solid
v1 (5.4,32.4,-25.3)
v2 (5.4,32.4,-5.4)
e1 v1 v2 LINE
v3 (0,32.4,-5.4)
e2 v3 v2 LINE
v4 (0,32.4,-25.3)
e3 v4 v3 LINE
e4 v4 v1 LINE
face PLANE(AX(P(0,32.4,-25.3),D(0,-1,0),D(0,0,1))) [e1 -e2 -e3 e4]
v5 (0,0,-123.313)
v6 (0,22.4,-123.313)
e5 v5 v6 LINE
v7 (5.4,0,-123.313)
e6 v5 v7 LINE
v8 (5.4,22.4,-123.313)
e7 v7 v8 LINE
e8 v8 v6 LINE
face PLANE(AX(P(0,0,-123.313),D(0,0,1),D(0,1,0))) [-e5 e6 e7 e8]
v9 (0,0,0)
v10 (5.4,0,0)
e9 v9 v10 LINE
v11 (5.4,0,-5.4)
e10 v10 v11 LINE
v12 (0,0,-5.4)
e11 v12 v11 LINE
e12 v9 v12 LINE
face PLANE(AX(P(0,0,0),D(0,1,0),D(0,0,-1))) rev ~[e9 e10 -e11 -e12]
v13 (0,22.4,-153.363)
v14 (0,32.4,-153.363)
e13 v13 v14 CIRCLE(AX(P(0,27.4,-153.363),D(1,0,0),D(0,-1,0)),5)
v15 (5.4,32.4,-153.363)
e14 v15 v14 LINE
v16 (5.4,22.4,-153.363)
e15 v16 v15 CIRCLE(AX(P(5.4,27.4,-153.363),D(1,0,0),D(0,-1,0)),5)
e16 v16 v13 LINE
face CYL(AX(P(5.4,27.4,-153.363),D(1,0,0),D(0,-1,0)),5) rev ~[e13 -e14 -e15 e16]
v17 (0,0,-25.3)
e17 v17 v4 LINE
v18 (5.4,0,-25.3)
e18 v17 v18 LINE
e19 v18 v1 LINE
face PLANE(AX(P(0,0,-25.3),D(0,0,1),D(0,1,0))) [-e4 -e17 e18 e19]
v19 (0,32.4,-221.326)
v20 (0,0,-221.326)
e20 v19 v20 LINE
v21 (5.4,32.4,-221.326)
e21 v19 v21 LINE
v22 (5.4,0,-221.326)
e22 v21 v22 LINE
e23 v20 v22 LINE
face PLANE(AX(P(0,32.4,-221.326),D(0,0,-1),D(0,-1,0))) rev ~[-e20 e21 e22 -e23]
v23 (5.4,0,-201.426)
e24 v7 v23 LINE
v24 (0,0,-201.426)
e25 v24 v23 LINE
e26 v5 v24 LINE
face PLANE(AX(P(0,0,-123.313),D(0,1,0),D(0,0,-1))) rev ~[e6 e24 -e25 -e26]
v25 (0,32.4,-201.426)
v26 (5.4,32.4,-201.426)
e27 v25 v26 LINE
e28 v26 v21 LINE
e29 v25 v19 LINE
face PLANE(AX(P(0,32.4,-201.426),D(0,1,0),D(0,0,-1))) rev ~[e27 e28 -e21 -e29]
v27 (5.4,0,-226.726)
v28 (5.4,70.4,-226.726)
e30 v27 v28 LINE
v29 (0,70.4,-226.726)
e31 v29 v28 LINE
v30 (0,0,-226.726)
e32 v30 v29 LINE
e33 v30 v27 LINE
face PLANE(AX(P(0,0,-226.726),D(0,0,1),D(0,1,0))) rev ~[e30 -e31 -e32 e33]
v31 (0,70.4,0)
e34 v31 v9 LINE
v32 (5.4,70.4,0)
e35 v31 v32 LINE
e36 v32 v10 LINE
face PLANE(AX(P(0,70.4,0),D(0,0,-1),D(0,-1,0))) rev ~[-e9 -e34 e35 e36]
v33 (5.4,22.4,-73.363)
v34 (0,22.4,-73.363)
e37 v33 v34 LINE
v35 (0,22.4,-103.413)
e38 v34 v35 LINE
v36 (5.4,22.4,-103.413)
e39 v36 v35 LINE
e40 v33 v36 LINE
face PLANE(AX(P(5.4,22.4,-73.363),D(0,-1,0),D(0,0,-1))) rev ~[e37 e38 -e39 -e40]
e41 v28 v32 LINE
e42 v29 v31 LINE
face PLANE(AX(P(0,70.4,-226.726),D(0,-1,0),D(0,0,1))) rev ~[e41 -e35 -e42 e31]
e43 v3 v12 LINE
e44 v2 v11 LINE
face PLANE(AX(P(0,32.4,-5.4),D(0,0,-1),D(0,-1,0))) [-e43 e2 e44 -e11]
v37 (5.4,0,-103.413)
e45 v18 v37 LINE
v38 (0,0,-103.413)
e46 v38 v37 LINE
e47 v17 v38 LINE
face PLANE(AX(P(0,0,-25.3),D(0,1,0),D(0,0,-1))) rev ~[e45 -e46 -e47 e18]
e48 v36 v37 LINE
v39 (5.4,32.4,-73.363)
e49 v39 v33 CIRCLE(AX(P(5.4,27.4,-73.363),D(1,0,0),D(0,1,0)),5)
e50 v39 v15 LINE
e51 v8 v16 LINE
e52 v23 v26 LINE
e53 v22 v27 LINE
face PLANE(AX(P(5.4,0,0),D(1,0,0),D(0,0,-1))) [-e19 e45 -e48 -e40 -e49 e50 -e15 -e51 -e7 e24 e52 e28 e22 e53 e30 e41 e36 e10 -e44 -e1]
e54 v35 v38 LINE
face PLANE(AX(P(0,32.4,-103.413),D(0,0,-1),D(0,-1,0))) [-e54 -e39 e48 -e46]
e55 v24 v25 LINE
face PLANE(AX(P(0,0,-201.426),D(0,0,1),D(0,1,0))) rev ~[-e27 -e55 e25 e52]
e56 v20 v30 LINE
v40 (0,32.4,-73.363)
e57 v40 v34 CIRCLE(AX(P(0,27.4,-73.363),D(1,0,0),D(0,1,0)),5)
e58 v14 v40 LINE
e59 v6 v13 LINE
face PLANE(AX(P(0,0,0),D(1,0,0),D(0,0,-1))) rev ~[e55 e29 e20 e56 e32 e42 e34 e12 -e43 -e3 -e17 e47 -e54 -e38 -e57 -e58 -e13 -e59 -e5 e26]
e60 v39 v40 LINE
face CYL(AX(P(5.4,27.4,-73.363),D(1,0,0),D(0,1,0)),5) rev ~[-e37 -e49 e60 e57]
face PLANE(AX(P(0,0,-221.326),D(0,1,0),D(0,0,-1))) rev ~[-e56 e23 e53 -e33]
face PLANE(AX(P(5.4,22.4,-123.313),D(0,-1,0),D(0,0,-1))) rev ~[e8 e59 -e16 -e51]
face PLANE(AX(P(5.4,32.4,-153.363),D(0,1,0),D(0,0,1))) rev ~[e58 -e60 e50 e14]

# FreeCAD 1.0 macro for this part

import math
import FreeCAD as App
import Part
import Sketcher

V = App.Vector
Q = App.Units.Quantity


def add_polygon(sketch, points):
    """Adds a closed chain of lines whose ends are joined by coincident constraints."""
    first, n = sketch.GeometryCount, len(points)
    for a, b in zip(points, points[1:] + points[:1]):
        sketch.addGeometry(Part.LineSegment(App.Vector(*a, 0), App.Vector(*b, 0)), False)
    for i in range(n):
        sketch.addConstraint(Sketcher.Constraint("Coincident", first + i, 2, first + (i + 1) % n, 1))

doc = App.newDocument("Part")
params = doc.addObject("Spreadsheet::Sheet", "Params")
for row, (alias, value) in enumerate([
    ("sketch1_width", "70.4 mm"),
    ("sketch1_width2", "32.4 mm"),
    ("sketch1_height", "5.4 mm"),
    ("sketch1_height2", "19.9 mm"),
    ("pad1_length", "5.4 mm"),
    ("sketch2_radius", "5 mm"),
    ("sketch2_height", "30.05 mm"),
    ("pocket1_length", "10 mm"),
], start=1):
    params.set(f"A{row}", alias)
    params.set(f"B{row}", "=" + value)
    params.setAlias(f"B{row}", alias)

body = doc.addObject("PartDesign::Body", "Body")

# Sketch on YZ plane
sketch1 = body.newObject("Sketcher::SketchObject", "Sketch")
sketch1.AttachmentSupport = (doc.getObject("YZ_Plane"), [""])
sketch1.MapMode = "FlatFace"
add_polygon(sketch1, [(70.4, 0), (0, 0), (0, -5.4), (32.4, -5.4), (32.4, -25.3), (0, -25.3), (0, -103.413), (32.4, -103.413), (32.4, -123.313), (0, -123.313), (0, -201.426), (32.4, -201.426), (32.4, -221.326), (0, -221.326), (0, -226.726), (70.4, -226.726)])  # lines 0-15
sketch1.addConstraint(Sketcher.Constraint("Horizontal", 0))
sketch1.addConstraint(Sketcher.Constraint("Vertical", 1))
sketch1.addConstraint(Sketcher.Constraint("Horizontal", 2))
sketch1.addConstraint(Sketcher.Constraint("Vertical", 3))
sketch1.addConstraint(Sketcher.Constraint("Horizontal", 4))
sketch1.addConstraint(Sketcher.Constraint("Vertical", 5))
sketch1.addConstraint(Sketcher.Constraint("Horizontal", 6))
sketch1.addConstraint(Sketcher.Constraint("Vertical", 7))
sketch1.addConstraint(Sketcher.Constraint("Horizontal", 8))
sketch1.addConstraint(Sketcher.Constraint("Vertical", 9))
sketch1.addConstraint(Sketcher.Constraint("Horizontal", 10))
sketch1.addConstraint(Sketcher.Constraint("Vertical", 11))
sketch1.addConstraint(Sketcher.Constraint("Horizontal", 12))
sketch1.addConstraint(Sketcher.Constraint("Vertical", 13))
sketch1.addConstraint(Sketcher.Constraint("Horizontal", 14))
sketch1.addConstraint(Sketcher.Constraint("Vertical", 15))
sketch1.addConstraint(Sketcher.Constraint("Coincident", 0, 2, -1, 1))
sketch1.addConstraint(Sketcher.Constraint("PointOnObject", 4, 2, -2))
sketch1.addConstraint(Sketcher.Constraint("PointOnObject", 8, 2, -2))
sketch1.addConstraint(Sketcher.Constraint("PointOnObject", 12, 2, -2))
sketch1.addConstraint(Sketcher.Constraint("Vertical", 3, 2, 6, 2))
sketch1.addConstraint(Sketcher.Constraint("Vertical", 7, 2, 10, 2))
sketch1.addConstraint(Sketcher.Constraint("Equal", 3, 7))
sketch1.addConstraint(Sketcher.Constraint("Equal", 5, 9))
sketch1.addConstraint(Sketcher.Constraint("Equal", 7, 11))
sketch1.addConstraint(Sketcher.Constraint("Equal", 1, 13))
sketch1.addConstraint(Sketcher.Constraint("DistanceX", 0, 2, 0, 1, Q("70.4 mm")))
sketch1.addConstraint(Sketcher.Constraint("DistanceX", 2, 1, 2, 2, Q("32.4 mm")))
sketch1.addConstraint(Sketcher.Constraint("DistanceY", 1, 2, 1, 1, Q("5.4 mm")))
sketch1.addConstraint(Sketcher.Constraint("DistanceY", 3, 2, 3, 1, Q("19.9 mm")))
sketch1.addConstraint(Sketcher.Constraint("DistanceY", 15, 1, 15, 2, Q("226.726 mm")))
sketch1.setExpression("Constraints[42]", "Params.sketch1_width")
sketch1.setExpression("Constraints[43]", "Params.sketch1_width2")
sketch1.setExpression("Constraints[44]", "Params.sketch1_height")
sketch1.setExpression("Constraints[45]", "Params.sketch1_height2")
pad1 = body.newObject("PartDesign::Pad", "Pad")
pad1.Profile = sketch1
pad1.setExpression("Length", "Params.pad1_length")

# Sketch on YZ plane
sketch2 = body.newObject("Sketcher::SketchObject", "Sketch001")
sketch2.AttachmentSupport = (doc.getObject("YZ_Plane"), [""])
sketch2.MapMode = "FlatFace"
sketch2.AttachmentOffset = App.Placement(V(0, 0, 5.4), App.Rotation())
sketch2.addGeometry(Part.LineSegment(V(32.4, -123.313, 0), V(22.4, -123.313, 0)), False)
sketch2.addGeometry(Part.LineSegment(V(22.4, -123.313, 0), V(22.4, -153.363, 0)), False)
sketch2.addGeometry(Part.ArcOfCircle(Part.Circle(V(27.4, -153.363, 0), V(0, 0, 1), 5), math.radians(180), math.radians(360)), False)
sketch2.addGeometry(Part.LineSegment(V(32.4, -153.363, 0), V(32.4, -123.313, 0)), False)
sketch2.addGeometry(Part.LineSegment(V(22.4, -73.363, 0), V(22.4, -103.413, 0)), False)
sketch2.addGeometry(Part.LineSegment(V(22.4, -103.413, 0), V(32.4, -103.413, 0)), False)
sketch2.addGeometry(Part.LineSegment(V(32.4, -103.413, 0), V(32.4, -73.363, 0)), False)
sketch2.addGeometry(Part.ArcOfCircle(Part.Circle(V(27.4, -73.363, 0), V(0, 0, 1), 5), math.radians(0), math.radians(180)), False)
sketch2.addConstraint(Sketcher.Constraint("Coincident", 0, 2, 1, 1))
sketch2.addConstraint(Sketcher.Constraint("Tangent", 1, 2, 2, 1))
sketch2.addConstraint(Sketcher.Constraint("Tangent", 2, 2, 3, 1))
sketch2.addConstraint(Sketcher.Constraint("Coincident", 3, 2, 0, 1))
sketch2.addConstraint(Sketcher.Constraint("Coincident", 4, 2, 5, 1))
sketch2.addConstraint(Sketcher.Constraint("Coincident", 5, 2, 6, 1))
sketch2.addConstraint(Sketcher.Constraint("Tangent", 6, 2, 7, 1))
sketch2.addConstraint(Sketcher.Constraint("Tangent", 7, 2, 4, 1))
sketch2.addConstraint(Sketcher.Constraint("Horizontal", 0))
sketch2.addConstraint(Sketcher.Constraint("Vertical", 1))
sketch2.addConstraint(Sketcher.Constraint("Vertical", 3))
sketch2.addConstraint(Sketcher.Constraint("Vertical", 4))
sketch2.addConstraint(Sketcher.Constraint("Horizontal", 5))
sketch2.addConstraint(Sketcher.Constraint("Vertical", 6))
sketch2.addConstraint(Sketcher.Constraint("Equal", 2, 7))
sketch2.addConstraint(Sketcher.Constraint("Vertical", 2, 3, 7, 3))
sketch2.addConstraint(Sketcher.Constraint("Equal", 3, 4))
sketch2.addConstraint(Sketcher.Constraint("Radius", 2, Q("5 mm")))
sketch2.addConstraint(Sketcher.Constraint("DistanceY", 2, 3, 7, 3, Q("80 mm")))
sketch2.addConstraint(Sketcher.Constraint("DistanceY", 1, 2, 1, 1, Q("30.05 mm")))
sketch2.addConstraint(Sketcher.Constraint("DistanceX", -1, 1, 2, 3, Q("27.4 mm")))
sketch2.addConstraint(Sketcher.Constraint("DistanceY", 2, 3, -1, 1, Q("153.363 mm")))
sketch2.setExpression("Constraints[17]", "Params.sketch2_radius")
sketch2.setExpression("Constraints[19]", "Params.sketch2_height")
pocket1 = body.newObject("PartDesign::Pocket", "Pocket")
pocket1.Profile = sketch2
pocket1.setExpression("Length", "Params.pocket1_length")

doc.recompute()
